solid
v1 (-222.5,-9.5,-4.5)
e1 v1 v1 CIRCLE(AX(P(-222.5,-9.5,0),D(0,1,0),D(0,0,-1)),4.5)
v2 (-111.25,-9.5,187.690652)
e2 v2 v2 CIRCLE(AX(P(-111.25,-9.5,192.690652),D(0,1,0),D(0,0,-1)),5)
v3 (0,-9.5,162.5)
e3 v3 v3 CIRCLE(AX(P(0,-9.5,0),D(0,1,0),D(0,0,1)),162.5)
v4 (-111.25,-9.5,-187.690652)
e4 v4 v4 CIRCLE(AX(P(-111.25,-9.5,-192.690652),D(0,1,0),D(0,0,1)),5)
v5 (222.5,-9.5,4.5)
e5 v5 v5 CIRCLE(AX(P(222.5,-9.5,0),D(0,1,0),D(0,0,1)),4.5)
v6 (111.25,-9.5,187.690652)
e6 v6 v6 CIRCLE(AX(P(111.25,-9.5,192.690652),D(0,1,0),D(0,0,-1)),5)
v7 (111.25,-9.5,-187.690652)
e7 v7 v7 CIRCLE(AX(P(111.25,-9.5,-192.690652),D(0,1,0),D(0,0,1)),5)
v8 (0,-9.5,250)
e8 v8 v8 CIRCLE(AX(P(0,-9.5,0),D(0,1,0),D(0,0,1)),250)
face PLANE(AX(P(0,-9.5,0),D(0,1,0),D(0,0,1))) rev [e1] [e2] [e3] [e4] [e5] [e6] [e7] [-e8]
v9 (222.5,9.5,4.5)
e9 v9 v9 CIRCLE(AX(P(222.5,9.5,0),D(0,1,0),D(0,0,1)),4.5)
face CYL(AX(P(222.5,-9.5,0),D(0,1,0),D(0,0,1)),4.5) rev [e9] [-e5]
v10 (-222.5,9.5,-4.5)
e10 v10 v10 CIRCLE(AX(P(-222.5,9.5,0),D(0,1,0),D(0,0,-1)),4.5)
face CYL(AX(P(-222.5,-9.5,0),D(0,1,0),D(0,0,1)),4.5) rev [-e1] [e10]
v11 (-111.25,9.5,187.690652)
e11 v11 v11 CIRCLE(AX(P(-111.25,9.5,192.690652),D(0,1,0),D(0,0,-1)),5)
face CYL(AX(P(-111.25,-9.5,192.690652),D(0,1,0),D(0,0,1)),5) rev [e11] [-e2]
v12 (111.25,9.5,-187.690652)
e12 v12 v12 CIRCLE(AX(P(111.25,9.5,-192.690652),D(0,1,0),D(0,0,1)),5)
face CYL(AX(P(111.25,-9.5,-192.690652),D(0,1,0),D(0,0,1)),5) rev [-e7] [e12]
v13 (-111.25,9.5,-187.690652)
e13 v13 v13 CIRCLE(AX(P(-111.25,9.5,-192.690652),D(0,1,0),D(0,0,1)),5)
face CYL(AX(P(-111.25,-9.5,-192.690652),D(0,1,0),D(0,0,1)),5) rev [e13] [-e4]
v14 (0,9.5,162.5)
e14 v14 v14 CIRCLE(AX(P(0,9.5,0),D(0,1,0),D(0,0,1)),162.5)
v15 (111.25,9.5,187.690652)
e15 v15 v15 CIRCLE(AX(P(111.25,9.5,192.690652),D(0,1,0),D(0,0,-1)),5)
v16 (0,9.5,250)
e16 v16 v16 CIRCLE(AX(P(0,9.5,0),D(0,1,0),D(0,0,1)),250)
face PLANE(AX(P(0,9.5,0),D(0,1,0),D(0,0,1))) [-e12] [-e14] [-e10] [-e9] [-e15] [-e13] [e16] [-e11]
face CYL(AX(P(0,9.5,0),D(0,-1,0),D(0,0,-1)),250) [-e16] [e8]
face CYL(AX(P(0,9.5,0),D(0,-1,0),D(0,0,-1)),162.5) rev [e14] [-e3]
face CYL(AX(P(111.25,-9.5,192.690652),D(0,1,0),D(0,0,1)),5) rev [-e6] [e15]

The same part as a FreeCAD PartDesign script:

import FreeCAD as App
import Part
import Sketcher

V = App.Vector
Q = App.Units.Quantity

doc = App.newDocument("Part")
params = doc.addObject("Spreadsheet::Sheet", "Params")
for row, (alias, value) in enumerate([
    ("sketch1_diameter", "500 mm"),
    ("sketch1_diameter2", "325 mm"),
    ("pad1_length", "19 mm"),
    ("sketch2_diameter", "10 mm"),
    ("sketch2_diameter2", "9 mm"),
], start=1):
    params.set(f"A{row}", alias)
    params.set(f"B{row}", "=" + value)
    params.setAlias(f"B{row}", alias)

body = doc.addObject("PartDesign::Body", "Body")

sketch1 = body.newObject("Sketcher::SketchObject", "Sketch")
sketch1.AttachmentSupport = (doc.getObject("XZ_Plane"), [""])
sketch1.MapMode = "FlatFace"
sketch1.addGeometry([
    Part.Circle(V(0, 0, 0), V(0, 0, 1), 250),
    Part.Circle(V(0, 0, 0), V(0, 0, 1), 162),
], False)
sketch1.addConstraint([
    Sketcher.Constraint("Coincident", 0, 3, -1, 1),
    Sketcher.Constraint("Coincident", 1, 3, -1, 1),
    Sketcher.Constraint("Diameter", 0, Q("500 mm")),
    Sketcher.Constraint("Diameter", 1, Q("325 mm")),
])
sketch1.setExpression("Constraints[2]", "Params.sketch1_diameter")
sketch1.setExpression("Constraints[3]", "Params.sketch1_diameter2")
pad1 = body.newObject("PartDesign::Pad", "Pad")
pad1.Profile = sketch1
pad1.setExpression("Length", "Params.pad1_length")
pad1.Midplane = True

sketch2 = body.newObject("Sketcher::SketchObject", "Sketch001")
sketch2.AttachmentSupport = (doc.getObject("XZ_Plane"), [""])
sketch2.MapMode = "FlatFace"
sketch2.AttachmentOffset = App.Placement(V(0, 0, -9.5), App.Rotation())
sketch2.addGeometry([
    Part.Circle(V(-111.2, -192.7, 0), V(0, 0, 1), 5),
    Part.Circle(V(111.2, -192.7, 0), V(0, 0, 1), 5),
    Part.Circle(V(222.5, 0, 0), V(0, 0, 1), 4.5),
    Part.Circle(V(-111.2, 192.7, 0), V(0, 0, 1), 5),
    Part.Circle(V(-222.5, 0, 0), V(0, 0, 1), 4.5),
    Part.Circle(V(111.2, 192.7, 0), V(0, 0, 1), 5),
], False)
sketch2.addConstraint([
    Sketcher.Constraint("Equal", 0, 1),
    Sketcher.Constraint("Equal", 1, 3),
    Sketcher.Constraint("Equal", 2, 4),
    Sketcher.Constraint("Equal", 3, 5),
    Sketcher.Constraint("Symmetric", 1, 3, 3, 3, -1, 1),
    Sketcher.Constraint("Symmetric", 2, 3, 4, 3, -1, 1),
    Sketcher.Constraint("Symmetric", 0, 3, 5, 3, -1, 1),
    Sketcher.Constraint("Symmetric", 0, 3, 1, 3, -2),
    Sketcher.Constraint("PointOnObject", 2, 3, -1),
    Sketcher.Constraint("Diameter", 0, Q("10 mm")),
    Sketcher.Constraint("Diameter", 2, Q("9 mm")),
    Sketcher.Constraint("DistanceX", 4, 3, 2, 3, Q("445 mm")),
    Sketcher.Constraint("DistanceX", 0, 3, 1, 3, Q("222.5 mm")),
    Sketcher.Constraint("DistanceY", 0, 3, -1, 1, Q("192.690652 mm")),
])
sketch2.setExpression("Constraints[9]", "Params.sketch2_diameter")
sketch2.setExpression("Constraints[10]", "Params.sketch2_diameter2")
pocket1 = body.newObject("PartDesign::Pocket", "Pocket")
pocket1.Profile = sketch2
pocket1.Type = "ThroughAll"
pocket1.Reversed = True

doc.recompute()
